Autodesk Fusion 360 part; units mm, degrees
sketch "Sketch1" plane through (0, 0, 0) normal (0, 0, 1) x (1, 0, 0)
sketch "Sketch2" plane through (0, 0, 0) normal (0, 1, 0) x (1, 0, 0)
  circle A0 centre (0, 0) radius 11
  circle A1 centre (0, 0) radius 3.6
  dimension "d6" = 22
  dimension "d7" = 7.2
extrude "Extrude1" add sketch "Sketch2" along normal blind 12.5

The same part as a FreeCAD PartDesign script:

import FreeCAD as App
import Part
import Sketcher

doc = App.newDocument("Part")
body = doc.addObject("PartDesign::Body", "Body")

# Sketch on XZ plane
sketch1 = body.newObject("Sketcher::SketchObject", "Sketch")
sketch1.AttachmentSupport = (doc.getObject("XZ_Plane"), [""])
sketch1.MapMode = "FlatFace"
sketch1.addGeometry(Part.Circle(App.Vector(0, 0, 0), App.Vector(0, 0, 1), 11), False)
sketch1.addGeometry(Part.Circle(App.Vector(0, 0, 0), App.Vector(0, 0, 1), 3.6), False)
sketch1.addConstraint(Sketcher.Constraint("Coincident", 0, 3, -1, 1))
sketch1.addConstraint(Sketcher.Constraint("Coincident", 1, 3, -1, 1))
sketch1.addConstraint(Sketcher.Constraint("Diameter", 0, 22.0))
sketch1.addConstraint(Sketcher.Constraint("Diameter", 1, 7.2))
pad1 = body.newObject("PartDesign::Pad", "Pad")
pad1.Profile = sketch1
pad1.Length = 12.5
pad1.Reversed = True

doc.recompute()
